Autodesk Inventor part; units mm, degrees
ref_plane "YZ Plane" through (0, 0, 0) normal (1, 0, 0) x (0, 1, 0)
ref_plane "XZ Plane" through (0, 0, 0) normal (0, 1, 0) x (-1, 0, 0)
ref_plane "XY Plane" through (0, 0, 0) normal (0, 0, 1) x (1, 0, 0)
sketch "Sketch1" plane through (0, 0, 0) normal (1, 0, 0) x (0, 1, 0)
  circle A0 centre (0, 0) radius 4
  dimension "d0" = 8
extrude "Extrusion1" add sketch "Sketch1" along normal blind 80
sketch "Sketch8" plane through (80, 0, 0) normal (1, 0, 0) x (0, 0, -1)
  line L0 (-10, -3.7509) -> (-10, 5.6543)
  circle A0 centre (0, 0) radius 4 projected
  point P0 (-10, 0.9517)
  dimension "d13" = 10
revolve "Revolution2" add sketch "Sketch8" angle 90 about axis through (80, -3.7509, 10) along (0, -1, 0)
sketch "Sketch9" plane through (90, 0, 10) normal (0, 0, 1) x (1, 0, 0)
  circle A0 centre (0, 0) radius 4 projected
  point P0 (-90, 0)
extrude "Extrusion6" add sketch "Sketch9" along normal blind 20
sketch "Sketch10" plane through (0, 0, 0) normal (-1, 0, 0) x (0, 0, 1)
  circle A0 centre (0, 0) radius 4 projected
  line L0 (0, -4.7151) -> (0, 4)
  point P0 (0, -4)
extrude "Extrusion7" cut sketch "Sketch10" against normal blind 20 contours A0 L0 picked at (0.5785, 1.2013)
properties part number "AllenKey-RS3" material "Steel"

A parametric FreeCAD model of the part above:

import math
import FreeCAD as App
import Part
import Sketcher
from FreeCAD import Vector
Q = App.Units.Quantity

doc = App.newDocument("Part")
body = doc.addObject("PartDesign::Body", "Body")

# Sketch on YZ plane
sketch1 = body.newObject("Sketcher::SketchObject", "Sketch")
sketch1.AttachmentSupport = (doc.getObject("YZ_Plane"), [""])
sketch1.MapMode = "FlatFace"
sketch1.addGeometry(Part.Circle(Vector(0, 0, 0), Vector(0, 0, 1), 4), False)
sketch1.addConstraint([
    Sketcher.Constraint("Coincident", 0, 3, -1, 1),
    Sketcher.Constraint("Diameter", 0, Q("8 mm")),
])
pad1 = body.newObject("PartDesign::Pad", "Pad")
pad1.Profile = sketch1
pad1.Length = 80

# Sketch on YZ plane
sketch2 = body.newObject("Sketcher::SketchObject", "Sketch001")
sketch2.AttachmentSupport = (doc.getObject("YZ_Plane"), [""])
sketch2.MapMode = "FlatFace"
sketch2.AttachmentOffset = App.Placement(Vector(0, 0, 80), App.Rotation())
sketch2.addGeometry(Part.Circle(Vector(0, 0, 0), Vector(0, 0, 1), 4), False)
sketch2.addGeometry(Part.LineSegment(Vector(0, 10, 0), Vector(-10, 10, 0)), True)  # axis
sketch2.addConstraint([
    Sketcher.Constraint("Horizontal", 1),
    Sketcher.Constraint("Coincident", 0, 3, -1, 1),
    Sketcher.Constraint("PointOnObject", 1, 1, -2),
    Sketcher.Constraint("DistanceX", 1, 2, 1, 1, Q("10 mm")),
    Sketcher.Constraint("Diameter", 0, Q("8 mm")),
    Sketcher.Constraint("DistanceY", -1, 1, 1, 1, Q("10 mm")),
])
revolution = body.newObject("PartDesign::Revolution", "Revolution")
revolution.Profile = sketch2
revolution.ReferenceAxis = (sketch2, ["Axis0"])
revolution.Angle = 90

# Sketch on XY plane
sketch3 = body.newObject("Sketcher::SketchObject", "Sketch002")
sketch3.AttachmentSupport = (doc.getObject("XY_Plane"), [""])
sketch3.MapMode = "FlatFace"
sketch3.AttachmentOffset = App.Placement(Vector(0, 0, 10), App.Rotation())
sketch3.addGeometry(Part.Circle(Vector(90, 0, 0), Vector(0, 0, 1), 4), False)
sketch3.addConstraint([
    Sketcher.Constraint("PointOnObject", 0, 3, -1),
    Sketcher.Constraint("Diameter", 0, Q("8 mm")),
    Sketcher.Constraint("DistanceX", -1, 1, 0, 3, Q("90 mm")),
])
pad2 = body.newObject("PartDesign::Pad", "Pad001")
pad2.Profile = sketch3
pad2.Length = 20

# Sketch on YZ plane
sketch4 = body.newObject("Sketcher::SketchObject", "Sketch003")
sketch4.AttachmentSupport = (doc.getObject("YZ_Plane"), [""])
sketch4.MapMode = "FlatFace"
sketch4.addGeometry([
    Part.ArcOfCircle(Part.Circle(Vector(0, 0, 0), Vector(0, 0, 1), 4), math.radians(0), math.radians(180)),
    Part.LineSegment(Vector(4, 0, 0), Vector(-4, 0, 0)),
], False)
sketch4.addConstraint([
    Sketcher.Constraint("Coincident", 0, 1, 1, 1),
    Sketcher.Constraint("Coincident", 1, 2, 0, 2),
    Sketcher.Constraint("Horizontal", 1),
    Sketcher.Constraint("Coincident", 0, 3, -1, 1),
    Sketcher.Constraint("PointOnObject", 0, 1, -1),
    Sketcher.Constraint("Radius", 0, Q("4 mm")),
])
pocket1 = body.newObject("PartDesign::Pocket", "Pocket")
pocket1.Profile = sketch4
pocket1.Length = 20
pocket1.Reversed = True

doc.recompute()
